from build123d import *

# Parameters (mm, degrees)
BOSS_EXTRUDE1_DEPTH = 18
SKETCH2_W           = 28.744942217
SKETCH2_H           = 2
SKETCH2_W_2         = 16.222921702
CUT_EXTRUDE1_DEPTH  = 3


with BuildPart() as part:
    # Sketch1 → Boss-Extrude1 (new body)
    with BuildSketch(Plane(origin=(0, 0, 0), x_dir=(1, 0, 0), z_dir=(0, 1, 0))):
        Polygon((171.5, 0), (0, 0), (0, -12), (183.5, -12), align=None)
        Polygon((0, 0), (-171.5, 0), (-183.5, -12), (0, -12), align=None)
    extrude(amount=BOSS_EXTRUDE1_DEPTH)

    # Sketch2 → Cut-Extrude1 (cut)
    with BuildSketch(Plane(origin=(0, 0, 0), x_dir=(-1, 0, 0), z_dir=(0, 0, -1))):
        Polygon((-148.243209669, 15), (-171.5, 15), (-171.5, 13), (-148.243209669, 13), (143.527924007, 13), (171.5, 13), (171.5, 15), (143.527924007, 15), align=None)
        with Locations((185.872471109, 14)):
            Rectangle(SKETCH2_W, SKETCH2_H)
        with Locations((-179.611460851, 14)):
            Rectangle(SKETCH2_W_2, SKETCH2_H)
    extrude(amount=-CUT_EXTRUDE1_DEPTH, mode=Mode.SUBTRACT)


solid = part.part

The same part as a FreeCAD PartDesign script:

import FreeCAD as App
import Part
import Sketcher


def add_polygon(sketch, points):
    """Adds a closed chain of lines whose ends are joined by coincident constraints."""
    first, n = sketch.GeometryCount, len(points)
    for a, b in zip(points, points[1:] + points[:1]):
        sketch.addGeometry(Part.LineSegment(App.Vector(*a, 0), App.Vector(*b, 0)), False)
    for i in range(n):
        sketch.addConstraint(Sketcher.Constraint("Coincident", first + i, 2, first + (i + 1) % n, 1))

doc = App.newDocument("Part")
params = doc.addObject("Spreadsheet::Sheet", "Params")
for row, (alias, value) in enumerate([
    ("sketch1_width", "343 mm"),
    ("sketch1_width2", "367 mm"),
    ("pad1_length", "18 mm"),
    ("sketch2_height", "2 mm"),
    ("pocket1_length", "3 mm"),
], start=1):
    params.set(f"A{row}", alias)
    params.set(f"B{row}", "=" + value)
    params.setAlias(f"B{row}", alias)

body = doc.addObject("PartDesign::Body", "Body")

# Sketch on XZ plane
sketch1 = body.newObject("Sketcher::SketchObject", "Sketch")
sketch1.AttachmentSupport = (doc.getObject("XZ_Plane"), [""])
sketch1.MapMode = "FlatFace"
add_polygon(sketch1, [(171.5, 0), (-171.5, 0), (-183.5, 12), (183.5, 12)])  # lines 0-3
sketch1.addConstraint([
    Sketcher.Constraint("Horizontal", 0),
    Sketcher.Constraint("Horizontal", 2),
    Sketcher.Constraint("Symmetric", 0, 2, 3, 2, -1, 1),
    Sketcher.Constraint("Perpendicular", 1, 3),
    Sketcher.Constraint("Equal", 1, 3),
    Sketcher.Constraint("DistanceX", 0, 2, 0, 1, 343.0),
    Sketcher.Constraint("DistanceX", 2, 1, 2, 2, 367.0),
])
sketch1.setExpression("Constraints[9]", "Params.sketch1_width")
sketch1.setExpression("Constraints[10]", "Params.sketch1_width2")
pad1 = body.newObject("PartDesign::Pad", "Pad")
pad1.Profile = sketch1
pad1.setExpression("Length", "Params.pad1_length")
pad1.Reversed = True

# Sketch on XY plane
sketch2 = body.newObject("Sketcher::SketchObject", "Sketch001")
sketch2.AttachmentSupport = (doc.getObject("XY_Plane"), [""])
sketch2.MapMode = "FlatFace"
add_polygon(sketch2, [(-200.244942, 13), (-200.244942, 15), (187.722922, 15), (187.722922, 13)])  # lines 0-3
sketch2.addConstraint([
    Sketcher.Constraint("Vertical", 0),
    Sketcher.Constraint("Horizontal", 1),
    Sketcher.Constraint("Vertical", 2),
    Sketcher.Constraint("Horizontal", 3),
    Sketcher.Constraint("DistanceY", 0, 1, 0, 2, 2.0),
    Sketcher.Constraint("DistanceY", -1, 1, 0, 2, 15.0),
    Sketcher.Constraint("DistanceX", 1, 1, 1, 2, 387.967864),
    Sketcher.Constraint("DistanceX", -1, 1, 1, 2, 187.722922),
])
sketch2.setExpression("Constraints[8]", "Params.sketch2_height")
pocket1 = body.newObject("PartDesign::Pocket", "Pocket")
pocket1.Profile = sketch2
pocket1.setExpression("Length", "Params.pocket1_length")
pocket1.Reversed = True

doc.recompute()
